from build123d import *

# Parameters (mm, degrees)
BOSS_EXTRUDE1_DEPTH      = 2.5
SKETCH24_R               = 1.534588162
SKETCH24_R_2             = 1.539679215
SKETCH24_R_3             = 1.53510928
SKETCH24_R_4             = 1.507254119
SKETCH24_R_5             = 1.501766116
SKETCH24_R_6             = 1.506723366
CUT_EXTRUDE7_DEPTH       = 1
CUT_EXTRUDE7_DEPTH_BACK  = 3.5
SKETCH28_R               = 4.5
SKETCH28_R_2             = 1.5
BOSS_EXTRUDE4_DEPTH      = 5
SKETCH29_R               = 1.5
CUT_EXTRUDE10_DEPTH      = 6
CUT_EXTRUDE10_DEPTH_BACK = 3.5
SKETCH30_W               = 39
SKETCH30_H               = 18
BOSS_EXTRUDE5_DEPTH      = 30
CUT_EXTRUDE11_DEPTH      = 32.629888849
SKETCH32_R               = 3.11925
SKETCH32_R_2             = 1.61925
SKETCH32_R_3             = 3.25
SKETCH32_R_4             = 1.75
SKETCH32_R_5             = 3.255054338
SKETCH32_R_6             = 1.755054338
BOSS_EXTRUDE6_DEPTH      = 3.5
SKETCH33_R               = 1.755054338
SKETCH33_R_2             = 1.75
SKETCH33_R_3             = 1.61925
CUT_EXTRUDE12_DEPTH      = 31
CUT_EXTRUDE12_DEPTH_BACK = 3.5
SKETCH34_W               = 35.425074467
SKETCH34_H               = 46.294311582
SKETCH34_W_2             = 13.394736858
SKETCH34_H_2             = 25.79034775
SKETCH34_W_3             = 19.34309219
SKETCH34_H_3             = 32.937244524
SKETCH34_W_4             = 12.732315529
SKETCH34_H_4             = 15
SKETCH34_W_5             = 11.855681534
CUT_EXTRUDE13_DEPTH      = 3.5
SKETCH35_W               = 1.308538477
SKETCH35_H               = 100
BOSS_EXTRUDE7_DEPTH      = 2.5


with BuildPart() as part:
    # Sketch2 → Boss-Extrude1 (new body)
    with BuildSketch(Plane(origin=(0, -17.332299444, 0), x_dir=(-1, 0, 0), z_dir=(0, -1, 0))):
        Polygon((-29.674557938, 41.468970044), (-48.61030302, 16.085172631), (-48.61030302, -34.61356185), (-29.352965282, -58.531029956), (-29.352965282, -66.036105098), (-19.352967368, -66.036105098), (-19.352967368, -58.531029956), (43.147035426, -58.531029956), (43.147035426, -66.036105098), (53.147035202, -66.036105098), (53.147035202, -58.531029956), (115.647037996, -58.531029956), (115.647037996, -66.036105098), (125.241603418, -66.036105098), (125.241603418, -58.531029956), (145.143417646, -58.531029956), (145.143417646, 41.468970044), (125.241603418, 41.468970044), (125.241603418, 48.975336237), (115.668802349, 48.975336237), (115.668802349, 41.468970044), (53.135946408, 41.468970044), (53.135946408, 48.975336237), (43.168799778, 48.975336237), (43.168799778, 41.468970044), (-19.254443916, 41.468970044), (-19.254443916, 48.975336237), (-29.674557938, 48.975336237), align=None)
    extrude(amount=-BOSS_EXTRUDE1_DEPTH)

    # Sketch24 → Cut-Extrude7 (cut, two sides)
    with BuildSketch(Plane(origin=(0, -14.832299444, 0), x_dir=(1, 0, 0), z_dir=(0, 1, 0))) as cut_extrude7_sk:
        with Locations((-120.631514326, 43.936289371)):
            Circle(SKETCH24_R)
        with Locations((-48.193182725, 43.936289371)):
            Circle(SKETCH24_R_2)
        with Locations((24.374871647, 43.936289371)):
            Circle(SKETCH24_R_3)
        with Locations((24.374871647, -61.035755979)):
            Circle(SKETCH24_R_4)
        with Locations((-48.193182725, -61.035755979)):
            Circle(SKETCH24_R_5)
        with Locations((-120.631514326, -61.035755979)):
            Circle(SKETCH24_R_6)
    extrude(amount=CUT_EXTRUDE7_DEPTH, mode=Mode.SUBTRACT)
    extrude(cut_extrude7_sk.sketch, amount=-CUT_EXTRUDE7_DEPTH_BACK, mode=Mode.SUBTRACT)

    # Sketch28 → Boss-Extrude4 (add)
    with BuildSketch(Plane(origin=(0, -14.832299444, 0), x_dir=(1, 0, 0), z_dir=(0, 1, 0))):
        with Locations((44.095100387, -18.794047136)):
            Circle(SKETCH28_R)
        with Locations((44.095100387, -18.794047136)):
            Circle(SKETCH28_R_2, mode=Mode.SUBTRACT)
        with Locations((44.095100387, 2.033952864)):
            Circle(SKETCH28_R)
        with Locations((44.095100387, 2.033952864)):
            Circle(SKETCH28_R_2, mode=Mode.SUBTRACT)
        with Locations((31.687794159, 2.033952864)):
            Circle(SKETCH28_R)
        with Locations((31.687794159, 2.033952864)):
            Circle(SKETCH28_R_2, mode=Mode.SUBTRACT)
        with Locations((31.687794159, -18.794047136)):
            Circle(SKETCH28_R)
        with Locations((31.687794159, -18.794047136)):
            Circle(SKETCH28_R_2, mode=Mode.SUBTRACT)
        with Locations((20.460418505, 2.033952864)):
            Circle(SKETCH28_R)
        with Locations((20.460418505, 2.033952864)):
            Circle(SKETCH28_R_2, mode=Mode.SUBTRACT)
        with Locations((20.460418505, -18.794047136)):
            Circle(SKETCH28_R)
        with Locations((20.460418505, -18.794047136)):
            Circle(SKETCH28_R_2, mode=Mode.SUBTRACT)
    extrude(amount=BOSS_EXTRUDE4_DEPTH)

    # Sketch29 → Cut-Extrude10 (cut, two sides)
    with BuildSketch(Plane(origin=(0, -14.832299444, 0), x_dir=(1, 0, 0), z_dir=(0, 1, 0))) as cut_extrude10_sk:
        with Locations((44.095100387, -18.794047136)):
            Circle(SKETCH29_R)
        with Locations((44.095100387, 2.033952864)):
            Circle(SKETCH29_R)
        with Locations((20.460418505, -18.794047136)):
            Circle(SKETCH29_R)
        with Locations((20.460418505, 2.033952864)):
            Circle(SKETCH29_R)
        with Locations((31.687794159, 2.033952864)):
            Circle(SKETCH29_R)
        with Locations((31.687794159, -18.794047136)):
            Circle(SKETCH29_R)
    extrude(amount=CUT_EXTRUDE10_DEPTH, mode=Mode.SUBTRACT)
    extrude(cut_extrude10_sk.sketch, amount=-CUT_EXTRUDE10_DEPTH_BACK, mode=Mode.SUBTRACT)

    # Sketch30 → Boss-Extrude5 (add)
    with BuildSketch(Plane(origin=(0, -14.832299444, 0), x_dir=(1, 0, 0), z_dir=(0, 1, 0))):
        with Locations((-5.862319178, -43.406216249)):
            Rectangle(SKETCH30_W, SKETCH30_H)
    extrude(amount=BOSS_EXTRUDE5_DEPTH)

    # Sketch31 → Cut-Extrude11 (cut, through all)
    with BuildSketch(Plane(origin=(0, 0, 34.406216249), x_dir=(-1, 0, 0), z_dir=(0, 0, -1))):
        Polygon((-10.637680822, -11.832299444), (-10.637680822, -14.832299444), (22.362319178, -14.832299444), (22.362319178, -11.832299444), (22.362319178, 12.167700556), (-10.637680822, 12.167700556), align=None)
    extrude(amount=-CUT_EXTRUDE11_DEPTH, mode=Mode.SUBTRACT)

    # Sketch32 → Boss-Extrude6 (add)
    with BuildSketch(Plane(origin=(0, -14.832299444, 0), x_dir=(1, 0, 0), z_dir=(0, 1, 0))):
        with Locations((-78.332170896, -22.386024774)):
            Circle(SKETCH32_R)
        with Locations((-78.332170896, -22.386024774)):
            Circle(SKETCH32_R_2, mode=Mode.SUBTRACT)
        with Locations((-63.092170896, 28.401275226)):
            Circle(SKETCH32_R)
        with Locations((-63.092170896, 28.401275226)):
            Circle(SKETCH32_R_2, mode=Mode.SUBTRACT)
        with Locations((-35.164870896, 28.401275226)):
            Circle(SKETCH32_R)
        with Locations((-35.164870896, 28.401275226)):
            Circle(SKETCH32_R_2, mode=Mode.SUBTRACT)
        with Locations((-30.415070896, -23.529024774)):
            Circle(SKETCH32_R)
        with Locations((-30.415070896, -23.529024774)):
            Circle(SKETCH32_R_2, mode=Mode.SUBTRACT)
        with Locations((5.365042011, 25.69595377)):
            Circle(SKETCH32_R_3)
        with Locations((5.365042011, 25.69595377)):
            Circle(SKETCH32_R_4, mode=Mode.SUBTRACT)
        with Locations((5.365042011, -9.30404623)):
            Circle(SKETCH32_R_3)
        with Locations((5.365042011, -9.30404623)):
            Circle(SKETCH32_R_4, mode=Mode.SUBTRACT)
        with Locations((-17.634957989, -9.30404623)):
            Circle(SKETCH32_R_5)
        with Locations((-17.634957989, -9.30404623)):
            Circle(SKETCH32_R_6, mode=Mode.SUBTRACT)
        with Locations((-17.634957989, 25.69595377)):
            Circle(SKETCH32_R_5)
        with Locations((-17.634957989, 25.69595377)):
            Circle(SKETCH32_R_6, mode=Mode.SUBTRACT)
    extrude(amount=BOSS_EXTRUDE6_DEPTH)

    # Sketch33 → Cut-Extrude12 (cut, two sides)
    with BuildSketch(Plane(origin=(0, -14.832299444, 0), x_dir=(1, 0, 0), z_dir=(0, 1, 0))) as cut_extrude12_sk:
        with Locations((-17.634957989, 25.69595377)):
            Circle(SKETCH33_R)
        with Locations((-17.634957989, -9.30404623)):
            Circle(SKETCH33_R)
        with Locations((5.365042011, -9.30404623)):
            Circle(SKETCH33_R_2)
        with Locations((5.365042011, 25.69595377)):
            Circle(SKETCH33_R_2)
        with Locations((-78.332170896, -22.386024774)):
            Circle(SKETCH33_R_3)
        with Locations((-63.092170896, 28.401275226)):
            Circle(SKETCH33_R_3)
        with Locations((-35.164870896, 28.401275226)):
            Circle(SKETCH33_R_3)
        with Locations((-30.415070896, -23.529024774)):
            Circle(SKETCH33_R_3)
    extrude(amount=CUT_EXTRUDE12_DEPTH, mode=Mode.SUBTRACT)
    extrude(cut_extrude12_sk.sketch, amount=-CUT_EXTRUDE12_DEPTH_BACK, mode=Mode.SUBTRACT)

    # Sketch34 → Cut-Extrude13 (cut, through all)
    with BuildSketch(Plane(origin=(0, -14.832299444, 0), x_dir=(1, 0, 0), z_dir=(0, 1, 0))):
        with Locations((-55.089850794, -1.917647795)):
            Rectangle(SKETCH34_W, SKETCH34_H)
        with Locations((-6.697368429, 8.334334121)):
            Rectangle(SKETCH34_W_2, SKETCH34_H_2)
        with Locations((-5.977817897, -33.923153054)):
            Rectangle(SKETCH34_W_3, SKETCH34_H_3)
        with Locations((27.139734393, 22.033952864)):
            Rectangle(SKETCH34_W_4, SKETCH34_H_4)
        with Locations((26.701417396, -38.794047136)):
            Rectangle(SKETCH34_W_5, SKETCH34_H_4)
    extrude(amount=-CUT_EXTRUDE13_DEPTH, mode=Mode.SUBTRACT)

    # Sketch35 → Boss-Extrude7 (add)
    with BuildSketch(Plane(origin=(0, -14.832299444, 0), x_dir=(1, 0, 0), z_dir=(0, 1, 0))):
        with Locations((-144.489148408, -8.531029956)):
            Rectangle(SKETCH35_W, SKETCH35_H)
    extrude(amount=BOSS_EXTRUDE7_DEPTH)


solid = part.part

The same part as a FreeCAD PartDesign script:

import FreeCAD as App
import Part
import Sketcher


def add_polygon(sketch, points):
    """Adds a closed chain of lines whose ends are joined by coincident constraints."""
    first, n = sketch.GeometryCount, len(points)
    for a, b in zip(points, points[1:] + points[:1]):
        sketch.addGeometry(Part.LineSegment(App.Vector(*a, 0), App.Vector(*b, 0)), False)
    for i in range(n):
        sketch.addConstraint(Sketcher.Constraint("Coincident", first + i, 2, first + (i + 1) % n, 1))

doc = App.newDocument("Part")
body = doc.addObject("PartDesign::Body", "Body")

# Sketch on XZ plane
sketch1 = body.newObject("Sketcher::SketchObject", "Sketch")
sketch1.AttachmentSupport = (doc.getObject("XZ_Plane"), [""])
sketch1.MapMode = "FlatFace"
sketch1.AttachmentOffset = App.Placement(App.Vector(0, 0, 17.332299), App.Rotation())
add_polygon(sketch1, [(29.674558, -41.46897), (48.610303, -16.085173), (48.610303, 34.613562), (29.352965, 58.53103), (29.352965, 66.036105), (19.352967, 66.036105), (19.352967, 58.53103), (-43.147035, 58.53103), (-43.147035, 66.036105), (-53.147035, 66.036105), (-53.147035, 58.53103), (-115.647038, 58.53103), (-115.647038, 66.036105), (-125.241603, 66.036105), (-125.241603, 58.53103), (-145.143418, 58.53103), (-145.143418, -41.46897), (-125.241603, -41.46897), (-125.241603, -48.975336), (-115.668802, -48.975336), (-115.668802, -41.46897), (-53.135946, -41.46897), (-53.135946, -48.975336), (-43.1688, -48.975336), (-43.1688, -41.46897), (19.254444, -41.46897), (19.254444, -48.975336), (29.674558, -48.975336)])  # lines 0-27
sketch1.addConstraint(Sketcher.Constraint("Vertical", 1))
sketch1.addConstraint(Sketcher.Constraint("Vertical", 3))
sketch1.addConstraint(Sketcher.Constraint("Horizontal", 4))
sketch1.addConstraint(Sketcher.Constraint("Vertical", 5))
sketch1.addConstraint(Sketcher.Constraint("Horizontal", 6))
sketch1.addConstraint(Sketcher.Constraint("Vertical", 7))
sketch1.addConstraint(Sketcher.Constraint("Horizontal", 8))
sketch1.addConstraint(Sketcher.Constraint("Vertical", 9))
sketch1.addConstraint(Sketcher.Constraint("Horizontal", 10))
sketch1.addConstraint(Sketcher.Constraint("Vertical", 11))
sketch1.addConstraint(Sketcher.Constraint("Horizontal", 12))
sketch1.addConstraint(Sketcher.Constraint("Vertical", 13))
sketch1.addConstraint(Sketcher.Constraint("Horizontal", 14))
sketch1.addConstraint(Sketcher.Constraint("Vertical", 15))
sketch1.addConstraint(Sketcher.Constraint("Horizontal", 16))
sketch1.addConstraint(Sketcher.Constraint("Vertical", 17))
sketch1.addConstraint(Sketcher.Constraint("Horizontal", 18))
sketch1.addConstraint(Sketcher.Constraint("Vertical", 19))
sketch1.addConstraint(Sketcher.Constraint("Horizontal", 20))
sketch1.addConstraint(Sketcher.Constraint("Vertical", 21))
sketch1.addConstraint(Sketcher.Constraint("Horizontal", 22))
sketch1.addConstraint(Sketcher.Constraint("Vertical", 23))
sketch1.addConstraint(Sketcher.Constraint("Horizontal", 24))
sketch1.addConstraint(Sketcher.Constraint("Vertical", 25))
sketch1.addConstraint(Sketcher.Constraint("Horizontal", 26))
sketch1.addConstraint(Sketcher.Constraint("Vertical", 27))
sketch1.addConstraint(Sketcher.Constraint("Horizontal", 2, 2, 5, 2))
sketch1.addConstraint(Sketcher.Constraint("Horizontal", 4, 2, 7, 2))
sketch1.addConstraint(Sketcher.Constraint("Horizontal", 6, 2, 9, 2))
sketch1.addConstraint(Sketcher.Constraint("Horizontal", 8, 2, 11, 2))
sketch1.addConstraint(Sketcher.Constraint("Horizontal", 10, 2, 13, 2))
sketch1.addConstraint(Sketcher.Constraint("Horizontal", 16, 2, 19, 2))
sketch1.addConstraint(Sketcher.Constraint("Horizontal", 18, 2, 21, 2))
sketch1.addConstraint(Sketcher.Constraint("Horizontal", 20, 2, 23, 2))
sketch1.addConstraint(Sketcher.Constraint("Horizontal", 22, 2, 25, 2))
sketch1.addConstraint(Sketcher.Constraint("Horizontal", 24, 2, 27, 2))
sketch1.addConstraint(Sketcher.Constraint("Vertical", 13, 2, 16, 2))
sketch1.addConstraint(Sketcher.Constraint("Equal", 4, 8))
sketch1.addConstraint(Sketcher.Constraint("Equal", 6, 10))
sketch1.addConstraint(Sketcher.Constraint("DistanceX", 8, 2, 8, 1, 10.0))
sketch1.addConstraint(Sketcher.Constraint("DistanceY", 15, 2, 15, 1, 100.0))
sketch1.addConstraint(Sketcher.Constraint("DistanceX", 6, 2, 2, 2, 72.500001))
sketch1.addConstraint(Sketcher.Constraint("DistanceX", 18, 1, 18, 2, 9.572801))
sketch1.addConstraint(Sketcher.Constraint("DistanceX", 22, 2, -1, 1, 43.1688))
sketch1.addConstraint(Sketcher.Constraint("Distance", 0, 31.66859))
sketch1.addConstraint(Sketcher.Constraint("Distance", 2, 30.706519))
sketch1.addConstraint(Sketcher.Constraint("DistanceX", 12, 2, 12, 1, 9.594565))
sketch1.addConstraint(Sketcher.Constraint("DistanceX", 14, 2, 14, 1, 19.901814))
sketch1.addConstraint(Sketcher.Constraint("DistanceX", 20, 1, 20, 2, 62.532856))
sketch1.addConstraint(Sketcher.Constraint("DistanceX", 22, 1, 22, 2, 9.967147))
sketch1.addConstraint(Sketcher.Constraint("DistanceX", 24, 1, 24, 2, 62.423244))
sketch1.addConstraint(Sketcher.Constraint("DistanceX", 26, 1, 26, 2, 10.420114))
sketch1.addConstraint(Sketcher.Constraint("DistanceY", 1, 1, 1, 2, 50.698734))
sketch1.addConstraint(Sketcher.Constraint("DistanceY", 3, 1, 3, 2, 7.505075))
sketch1.addConstraint(Sketcher.Constraint("DistanceY", 17, 2, 17, 1, 7.506366))
sketch1.addConstraint(Sketcher.Constraint("DistanceY", -1, 1, 1, 2, 34.613562))
pad1 = body.newObject("PartDesign::Pad", "Pad")
pad1.Profile = sketch1
pad1.Length = 2.5
pad1.Reversed = True

# Sketch on XZ plane
sketch2 = body.newObject("Sketcher::SketchObject", "Sketch001")
sketch2.AttachmentSupport = (doc.getObject("XZ_Plane"), [""])
sketch2.MapMode = "FlatFace"
sketch2.AttachmentOffset = App.Placement(App.Vector(0, 0, 14.832299), App.Rotation())
sketch2.addGeometry(Part.Circle(App.Vector(-120.631514, -43.936289, 0), App.Vector(0, 0, 1), 1.534588), False)
sketch2.addGeometry(Part.Circle(App.Vector(-48.193183, -43.936289, 0), App.Vector(0, 0, 1), 1.539679), False)
sketch2.addGeometry(Part.Circle(App.Vector(24.374872, -43.936289, 0), App.Vector(0, 0, 1), 1.535109), False)
sketch2.addGeometry(Part.Circle(App.Vector(24.374872, 61.035756, 0), App.Vector(0, 0, 1), 1.507254), False)
sketch2.addGeometry(Part.Circle(App.Vector(-48.193183, 61.035756, 0), App.Vector(0, 0, 1), 1.501766), False)
sketch2.addGeometry(Part.Circle(App.Vector(-120.631514, 61.035756, 0), App.Vector(0, 0, 1), 1.506723), False)
sketch2.addConstraint(Sketcher.Constraint("Horizontal", 0, 3, 1, 3))
sketch2.addConstraint(Sketcher.Constraint("Horizontal", 1, 3, 2, 3))
sketch2.addConstraint(Sketcher.Constraint("Horizontal", 3, 3, 4, 3))
sketch2.addConstraint(Sketcher.Constraint("Horizontal", 4, 3, 5, 3))
sketch2.addConstraint(Sketcher.Constraint("Vertical", 2, 3, 3, 3))
sketch2.addConstraint(Sketcher.Constraint("Vertical", 1, 3, 4, 3))
sketch2.addConstraint(Sketcher.Constraint("Vertical", 0, 3, 5, 3))
sketch2.addConstraint(Sketcher.Constraint("Diameter", 1, 3.079358))
sketch2.addConstraint(Sketcher.Constraint("Diameter", 2, 3.070219))
sketch2.addConstraint(Sketcher.Constraint("Diameter", 3, 3.014508))
sketch2.addConstraint(Sketcher.Constraint("Diameter", 0, 3.069176))
sketch2.addConstraint(Sketcher.Constraint("Diameter", 4, 3.003532))
sketch2.addConstraint(Sketcher.Constraint("Diameter", 5, 3.013447))
sketch2.addConstraint(Sketcher.Constraint("DistanceY", 0, 3, -1, 1, 43.936289))
sketch2.addConstraint(Sketcher.Constraint("DistanceX", -1, 1, 2, 3, 24.374872))
sketch2.addConstraint(Sketcher.Constraint("DistanceX", 0, 3, 1, 3, 72.438332))
sketch2.addConstraint(Sketcher.Constraint("DistanceX", 0, 3, -1, 1, 120.631514))
sketch2.addConstraint(Sketcher.Constraint("DistanceY", -1, 1, 3, 3, 61.035756))
pocket1 = body.newObject("PartDesign::Pocket", "Pocket")
pocket1.Profile = sketch2
pocket1.Type = "ThroughAll"
pocket1.Midplane = True

# Sketch on XZ plane
sketch3 = body.newObject("Sketcher::SketchObject", "Sketch002")
sketch3.AttachmentSupport = (doc.getObject("XZ_Plane"), [""])
sketch3.MapMode = "FlatFace"
sketch3.AttachmentOffset = App.Placement(App.Vector(0, 0, 14.832299), App.Rotation())
sketch3.addGeometry(Part.Circle(App.Vector(44.0951, 18.794047, 0), App.Vector(0, 0, 1), 4.5), False)
sketch3.addGeometry(Part.Circle(App.Vector(44.0951, 18.794047, 0), App.Vector(0, 0, 1), 1.5), False)
sketch3.addGeometry(Part.Circle(App.Vector(44.0951, -2.033953, 0), App.Vector(0, 0, 1), 4.5), False)
sketch3.addGeometry(Part.Circle(App.Vector(44.0951, -2.033953, 0), App.Vector(0, 0, 1), 1.5), False)
sketch3.addGeometry(Part.Circle(App.Vector(31.687794, -2.033953, 0), App.Vector(0, 0, 1), 4.5), False)
sketch3.addGeometry(Part.Circle(App.Vector(31.687794, -2.033953, 0), App.Vector(0, 0, 1), 1.5), False)
sketch3.addGeometry(Part.Circle(App.Vector(31.687794, 18.794047, 0), App.Vector(0, 0, 1), 4.5), False)
sketch3.addGeometry(Part.Circle(App.Vector(31.687794, 18.794047, 0), App.Vector(0, 0, 1), 1.5), False)
sketch3.addGeometry(Part.Circle(App.Vector(20.460419, -2.033953, 0), App.Vector(0, 0, 1), 4.5), False)
sketch3.addGeometry(Part.Circle(App.Vector(20.460419, -2.033953, 0), App.Vector(0, 0, 1), 1.5), False)
sketch3.addGeometry(Part.Circle(App.Vector(20.460419, 18.794047, 0), App.Vector(0, 0, 1), 4.5), False)
sketch3.addGeometry(Part.Circle(App.Vector(20.460419, 18.794047, 0), App.Vector(0, 0, 1), 1.5), False)
sketch3.addConstraint(Sketcher.Constraint("Coincident", 1, 3, 0, 3))
sketch3.addConstraint(Sketcher.Constraint("Coincident", 3, 3, 2, 3))
sketch3.addConstraint(Sketcher.Constraint("Coincident", 5, 3, 4, 3))
sketch3.addConstraint(Sketcher.Constraint("Coincident", 7, 3, 6, 3))
sketch3.addConstraint(Sketcher.Constraint("Coincident", 9, 3, 8, 3))
sketch3.addConstraint(Sketcher.Constraint("Coincident", 11, 3, 10, 3))
sketch3.addConstraint(Sketcher.Constraint("Equal", 0, 2))
sketch3.addConstraint(Sketcher.Constraint("Equal", 1, 3))
sketch3.addConstraint(Sketcher.Constraint("Equal", 2, 4))
sketch3.addConstraint(Sketcher.Constraint("Equal", 3, 5))
sketch3.addConstraint(Sketcher.Constraint("Equal", 4, 6))
sketch3.addConstraint(Sketcher.Constraint("Equal", 5, 7))
sketch3.addConstraint(Sketcher.Constraint("Equal", 6, 8))
sketch3.addConstraint(Sketcher.Constraint("Equal", 7, 9))
sketch3.addConstraint(Sketcher.Constraint("Equal", 8, 10))
sketch3.addConstraint(Sketcher.Constraint("Equal", 9, 11))
sketch3.addConstraint(Sketcher.Constraint("Horizontal", 3, 3, 4, 3))
sketch3.addConstraint(Sketcher.Constraint("Horizontal", 1, 3, 6, 3))
sketch3.addConstraint(Sketcher.Constraint("Horizontal", 5, 3, 8, 3))
sketch3.addConstraint(Sketcher.Constraint("Horizontal", 7, 3, 10, 3))
sketch3.addConstraint(Sketcher.Constraint("Vertical", 1, 3, 2, 3))
sketch3.addConstraint(Sketcher.Constraint("Vertical", 5, 3, 6, 3))
sketch3.addConstraint(Sketcher.Constraint("Vertical", 9, 3, 10, 3))
sketch3.addConstraint(Sketcher.Constraint("Diameter", 0, 9.0))
sketch3.addConstraint(Sketcher.Constraint("Diameter", 1, 3.0))
sketch3.addConstraint(Sketcher.Constraint("DistanceY", 2, 3, 0, 3, 20.828))
sketch3.addConstraint(Sketcher.Constraint("DistanceX", -1, 1, 0, 3, 44.0951))
sketch3.addConstraint(Sketcher.Constraint("DistanceX", -1, 1, 8, 3, 20.460419))
sketch3.addConstraint(Sketcher.Constraint("DistanceY", -1, 1, 0, 3, 18.794047))
sketch3.addConstraint(Sketcher.Constraint("DistanceX", -1, 1, 4, 3, 31.687794))
pad2 = body.newObject("PartDesign::Pad", "Pad001")
pad2.Profile = sketch3
pad2.Length = 5
pad2.Reversed = True

# Sketch on XZ plane
sketch4 = body.newObject("Sketcher::SketchObject", "Sketch003")
sketch4.AttachmentSupport = (doc.getObject("XZ_Plane"), [""])
sketch4.MapMode = "FlatFace"
sketch4.AttachmentOffset = App.Placement(App.Vector(0, 0, 14.832299), App.Rotation())
sketch4.addGeometry(Part.Circle(App.Vector(44.0951, 18.794047, 0), App.Vector(0, 0, 1), 1.5), False)
sketch4.addGeometry(Part.Circle(App.Vector(44.0951, -2.033953, 0), App.Vector(0, 0, 1), 1.5), False)
sketch4.addGeometry(Part.Circle(App.Vector(20.460419, 18.794047, 0), App.Vector(0, 0, 1), 1.5), False)
sketch4.addGeometry(Part.Circle(App.Vector(20.460419, -2.033953, 0), App.Vector(0, 0, 1), 1.5), False)
sketch4.addGeometry(Part.Circle(App.Vector(31.687794, -2.033953, 0), App.Vector(0, 0, 1), 1.5), False)
sketch4.addGeometry(Part.Circle(App.Vector(31.687794, 18.794047, 0), App.Vector(0, 0, 1), 1.5), False)
sketch4.addConstraint(Sketcher.Constraint("Equal", 0, 1))
sketch4.addConstraint(Sketcher.Constraint("Equal", 1, 2))
sketch4.addConstraint(Sketcher.Constraint("Equal", 2, 3))
sketch4.addConstraint(Sketcher.Constraint("Equal", 3, 4))
sketch4.addConstraint(Sketcher.Constraint("Equal", 4, 5))
sketch4.addConstraint(Sketcher.Constraint("Horizontal", 0, 3, 2, 3))
sketch4.addConstraint(Sketcher.Constraint("Horizontal", 1, 3, 3, 3))
sketch4.addConstraint(Sketcher.Constraint("Horizontal", 3, 3, 4, 3))
sketch4.addConstraint(Sketcher.Constraint("Horizontal", 2, 3, 5, 3))
sketch4.addConstraint(Sketcher.Constraint("Vertical", 0, 3, 1, 3))
sketch4.addConstraint(Sketcher.Constraint("Vertical", 2, 3, 3, 3))
sketch4.addConstraint(Sketcher.Constraint("Vertical", 4, 3, 5, 3))
sketch4.addConstraint(Sketcher.Constraint("Diameter", 0, 3.0))
sketch4.addConstraint(Sketcher.Constraint("DistanceY", 1, 3, 0, 3, 20.828))
sketch4.addConstraint(Sketcher.Constraint("DistanceX", -1, 1, 0, 3, 44.0951))
sketch4.addConstraint(Sketcher.Constraint("DistanceX", -1, 1, 2, 3, 20.460419))
sketch4.addConstraint(Sketcher.Constraint("DistanceY", -1, 1, 0, 3, 18.794047))
sketch4.addConstraint(Sketcher.Constraint("DistanceX", -1, 1, 4, 3, 31.687794))
pocket2 = body.newObject("PartDesign::Pocket", "Pocket001")
pocket2.Profile = sketch4
pocket2.Type = "ThroughAll"
pocket2.Midplane = True

# Sketch on XZ plane
sketch5 = body.newObject("Sketcher::SketchObject", "Sketch004")
sketch5.AttachmentSupport = (doc.getObject("XZ_Plane"), [""])
sketch5.MapMode = "FlatFace"
sketch5.AttachmentOffset = App.Placement(App.Vector(0, 0, 14.832299), App.Rotation())
add_polygon(sketch5, [(-25.362319, 34.406216), (-25.362319, 52.406216), (13.637681, 52.406216), (13.637681, 34.406216)])  # lines 0-3
sketch5.addConstraint(Sketcher.Constraint("Vertical", 0))
sketch5.addConstraint(Sketcher.Constraint("Horizontal", 1))
sketch5.addConstraint(Sketcher.Constraint("Vertical", 2))
sketch5.addConstraint(Sketcher.Constraint("Horizontal", 3))
sketch5.addConstraint(Sketcher.Constraint("DistanceX", 1, 1, 1, 2, 39.0))
sketch5.addConstraint(Sketcher.Constraint("DistanceY", 0, 1, 0, 2, 18.0))
sketch5.addConstraint(Sketcher.Constraint("DistanceX", 0, 2, -1, 1, 25.362319))
sketch5.addConstraint(Sketcher.Constraint("DistanceY", -1, 1, 0, 2, 52.406216))
pad3 = body.newObject("PartDesign::Pad", "Pad002")
pad3.Profile = sketch5
pad3.Length = 30
pad3.Reversed = True

# Sketch on XY plane
sketch6 = body.newObject("Sketcher::SketchObject", "Sketch005")
sketch6.AttachmentSupport = (doc.getObject("XY_Plane"), [""])
sketch6.MapMode = "FlatFace"
sketch6.AttachmentOffset = App.Placement(App.Vector(0, 0, 34.406216), App.Rotation())
add_polygon(sketch6, [(10.637681, -14.832299), (-22.362319, -14.832299), (-22.362319, 12.167701), (10.637681, 12.167701)])  # lines 0-3
sketch6.addConstraint(Sketcher.Constraint("Horizontal", 0))
sketch6.addConstraint(Sketcher.Constraint("Vertical", 1))
sketch6.addConstraint(Sketcher.Constraint("Horizontal", 2))
sketch6.addConstraint(Sketcher.Constraint("Vertical", 3))
sketch6.addConstraint(Sketcher.Constraint("DistanceX", 0, 2, 0, 1, 33.0))
sketch6.addConstraint(Sketcher.Constraint("DistanceY", 1, 1, 1, 2, 27.0))
sketch6.addConstraint(Sketcher.Constraint("DistanceY", 0, 2, -1, 1, 14.832299))
sketch6.addConstraint(Sketcher.Constraint("DistanceX", 0, 2, -1, 1, 22.362319))
pocket3 = body.newObject("PartDesign::Pocket", "Pocket002")
pocket3.Profile = sketch6
pocket3.Type = "ThroughAll"
pocket3.Reversed = True

# Sketch on XZ plane
sketch7 = body.newObject("Sketcher::SketchObject", "Sketch006")
sketch7.AttachmentSupport = (doc.getObject("XZ_Plane"), [""])
sketch7.MapMode = "FlatFace"
sketch7.AttachmentOffset = App.Placement(App.Vector(0, 0, 14.832299), App.Rotation())
sketch7.addGeometry(Part.Circle(App.Vector(-78.332171, 22.386025, 0), App.Vector(0, 0, 1), 3.11925), False)
sketch7.addGeometry(Part.Circle(App.Vector(-78.332171, 22.386025, 0), App.Vector(0, 0, 1), 1.61925), False)
sketch7.addGeometry(Part.Circle(App.Vector(-63.092171, -28.401275, 0), App.Vector(0, 0, 1), 3.11925), False)
sketch7.addGeometry(Part.Circle(App.Vector(-63.092171, -28.401275, 0), App.Vector(0, 0, 1), 1.61925), False)
sketch7.addGeometry(Part.Circle(App.Vector(-35.164871, -28.401275, 0), App.Vector(0, 0, 1), 3.11925), False)
sketch7.addGeometry(Part.Circle(App.Vector(-35.164871, -28.401275, 0), App.Vector(0, 0, 1), 1.61925), False)
sketch7.addGeometry(Part.Circle(App.Vector(-30.415071, 23.529025, 0), App.Vector(0, 0, 1), 3.11925), False)
sketch7.addGeometry(Part.Circle(App.Vector(-30.415071, 23.529025, 0), App.Vector(0, 0, 1), 1.61925), False)
sketch7.addGeometry(Part.Circle(App.Vector(5.365042, -25.695954, 0), App.Vector(0, 0, 1), 3.25), False)
sketch7.addGeometry(Part.Circle(App.Vector(5.365042, -25.695954, 0), App.Vector(0, 0, 1), 1.75), False)
sketch7.addGeometry(Part.Circle(App.Vector(5.365042, 9.304046, 0), App.Vector(0, 0, 1), 3.25), False)
sketch7.addGeometry(Part.Circle(App.Vector(5.365042, 9.304046, 0), App.Vector(0, 0, 1), 1.75), False)
sketch7.addGeometry(Part.Circle(App.Vector(-17.634958, 9.304046, 0), App.Vector(0, 0, 1), 3.255054), False)
sketch7.addGeometry(Part.Circle(App.Vector(-17.634958, 9.304046, 0), App.Vector(0, 0, 1), 1.755054), False)
sketch7.addGeometry(Part.Circle(App.Vector(-17.634958, -25.695954, 0), App.Vector(0, 0, 1), 3.255054), False)
sketch7.addGeometry(Part.Circle(App.Vector(-17.634958, -25.695954, 0), App.Vector(0, 0, 1), 1.755054), False)
sketch7.addConstraint(Sketcher.Constraint("Coincident", 1, 3, 0, 3))
sketch7.addConstraint(Sketcher.Constraint("Coincident", 3, 3, 2, 3))
sketch7.addConstraint(Sketcher.Constraint("Coincident", 5, 3, 4, 3))
sketch7.addConstraint(Sketcher.Constraint("Coincident", 7, 3, 6, 3))
sketch7.addConstraint(Sketcher.Constraint("Coincident", 9, 3, 8, 3))
sketch7.addConstraint(Sketcher.Constraint("Coincident", 11, 3, 10, 3))
sketch7.addConstraint(Sketcher.Constraint("Coincident", 13, 3, 12, 3))
sketch7.addConstraint(Sketcher.Constraint("Coincident", 15, 3, 14, 3))
sketch7.addConstraint(Sketcher.Constraint("Equal", 0, 2))
sketch7.addConstraint(Sketcher.Constraint("Equal", 1, 3))
sketch7.addConstraint(Sketcher.Constraint("Equal", 2, 4))
sketch7.addConstraint(Sketcher.Constraint("Equal", 3, 5))
sketch7.addConstraint(Sketcher.Constraint("Equal", 4, 6))
sketch7.addConstraint(Sketcher.Constraint("Equal", 5, 7))
sketch7.addConstraint(Sketcher.Constraint("Equal", 8, 10))
sketch7.addConstraint(Sketcher.Constraint("Equal", 9, 11))
sketch7.addConstraint(Sketcher.Constraint("Equal", 12, 14))
sketch7.addConstraint(Sketcher.Constraint("Equal", 13, 15))
sketch7.addConstraint(Sketcher.Constraint("Horizontal", 3, 3, 4, 3))
sketch7.addConstraint(Sketcher.Constraint("Horizontal", 11, 3, 12, 3))
sketch7.addConstraint(Sketcher.Constraint("Horizontal", 9, 3, 14, 3))
sketch7.addConstraint(Sketcher.Constraint("Vertical", 9, 3, 10, 3))
sketch7.addConstraint(Sketcher.Constraint("Vertical", 13, 3, 14, 3))
sketch7.addConstraint(Sketcher.Constraint("Diameter", 8, 6.5))
sketch7.addConstraint(Sketcher.Constraint("Diameter", 9, 3.5))
sketch7.addConstraint(Sketcher.Constraint("DistanceY", 8, 3, 10, 3, 35.0))
sketch7.addConstraint(Sketcher.Constraint("DistanceX", 12, 3, 10, 3, 23.0))
sketch7.addConstraint(Sketcher.Constraint("Diameter", 0, 6.2385))
sketch7.addConstraint(Sketcher.Constraint("Diameter", 1, 3.2385))
sketch7.addConstraint(Sketcher.Constraint("Diameter", 12, 6.510109))
sketch7.addConstraint(Sketcher.Constraint("Diameter", 13, 3.510109))
sketch7.addConstraint(Sketcher.Constraint("DistanceX", 0, 3, 2, 3, 15.24))
sketch7.addConstraint(Sketcher.Constraint("DistanceY", 0, 3, 6, 3, 1.143))
sketch7.addConstraint(Sketcher.Constraint("DistanceY", 2, 3, 0, 3, 50.7873))
sketch7.addConstraint(Sketcher.Constraint("DistanceX", 2, 3, 4, 3, 27.9273))
sketch7.addConstraint(Sketcher.Constraint("DistanceX", 0, 3, 6, 3, 47.9171))
sketch7.addConstraint(Sketcher.Constraint("DistanceX", 0, 3, -1, 1, 78.332171))
sketch7.addConstraint(Sketcher.Constraint("DistanceY", 4, 3, 8, 3, 2.705321))
sketch7.addConstraint(Sketcher.Constraint("DistanceY", -1, 1, 0, 3, 22.386025))
sketch7.addConstraint(Sketcher.Constraint("DistanceX", -1, 1, 8, 3, 5.365042))
pad4 = body.newObject("PartDesign::Pad", "Pad003")
pad4.Profile = sketch7
pad4.Length = 3.5
pad4.Reversed = True

# Sketch on XZ plane
sketch8 = body.newObject("Sketcher::SketchObject", "Sketch007")
sketch8.AttachmentSupport = (doc.getObject("XZ_Plane"), [""])
sketch8.MapMode = "FlatFace"
sketch8.AttachmentOffset = App.Placement(App.Vector(0, 0, 14.832299), App.Rotation())
sketch8.addGeometry(Part.Circle(App.Vector(-17.634958, -25.695954, 0), App.Vector(0, 0, 1), 1.755054), False)
sketch8.addGeometry(Part.Circle(App.Vector(-17.634958, 9.304046, 0), App.Vector(0, 0, 1), 1.755054), False)
sketch8.addGeometry(Part.Circle(App.Vector(5.365042, 9.304046, 0), App.Vector(0, 0, 1), 1.75), False)
sketch8.addGeometry(Part.Circle(App.Vector(5.365042, -25.695954, 0), App.Vector(0, 0, 1), 1.75), False)
sketch8.addGeometry(Part.Circle(App.Vector(-78.332171, 22.386025, 0), App.Vector(0, 0, 1), 1.61925), False)
sketch8.addGeometry(Part.Circle(App.Vector(-63.092171, -28.401275, 0), App.Vector(0, 0, 1), 1.61925), False)
sketch8.addGeometry(Part.Circle(App.Vector(-35.164871, -28.401275, 0), App.Vector(0, 0, 1), 1.61925), False)
sketch8.addGeometry(Part.Circle(App.Vector(-30.415071, 23.529025, 0), App.Vector(0, 0, 1), 1.61925), False)
sketch8.addConstraint(Sketcher.Constraint("Equal", 0, 1))
sketch8.addConstraint(Sketcher.Constraint("Equal", 2, 3))
sketch8.addConstraint(Sketcher.Constraint("Equal", 4, 5))
sketch8.addConstraint(Sketcher.Constraint("Equal", 5, 6))
sketch8.addConstraint(Sketcher.Constraint("Equal", 6, 7))
sketch8.addConstraint(Sketcher.Constraint("Horizontal", 1, 3, 2, 3))
sketch8.addConstraint(Sketcher.Constraint("Horizontal", 0, 3, 3, 3))
sketch8.addConstraint(Sketcher.Constraint("Horizontal", 5, 3, 6, 3))
sketch8.addConstraint(Sketcher.Constraint("Vertical", 0, 3, 1, 3))
sketch8.addConstraint(Sketcher.Constraint("Vertical", 2, 3, 3, 3))
sketch8.addConstraint(Sketcher.Constraint("Diameter", 2, 3.5))
sketch8.addConstraint(Sketcher.Constraint("DistanceY", 0, 3, 1, 3, 35.0))
sketch8.addConstraint(Sketcher.Constraint("DistanceX", 1, 3, 2, 3, 23.0))
sketch8.addConstraint(Sketcher.Constraint("Diameter", 4, 3.2385))
sketch8.addConstraint(Sketcher.Constraint("Diameter", 0, 3.510109))
sketch8.addConstraint(Sketcher.Constraint("DistanceX", 4, 3, 5, 3, 15.24))
sketch8.addConstraint(Sketcher.Constraint("DistanceY", 4, 3, 7, 3, 1.143))
sketch8.addConstraint(Sketcher.Constraint("DistanceY", 5, 3, 4, 3, 50.7873))
sketch8.addConstraint(Sketcher.Constraint("DistanceX", 5, 3, 6, 3, 27.9273))
sketch8.addConstraint(Sketcher.Constraint("DistanceX", 4, 3, 7, 3, 47.9171))
sketch8.addConstraint(Sketcher.Constraint("DistanceX", 4, 3, -1, 1, 78.332171))
sketch8.addConstraint(Sketcher.Constraint("DistanceY", 1, 3, 4, 3, 13.081979))
sketch8.addConstraint(Sketcher.Constraint("DistanceX", 0, 3, -1, 1, 17.634958))
sketch8.addConstraint(Sketcher.Constraint("DistanceY", 0, 3, -1, 1, 25.695954))
pocket4 = body.newObject("PartDesign::Pocket", "Pocket003")
pocket4.Profile = sketch8
pocket4.Type = "ThroughAll"
pocket4.Midplane = True

# Sketch on XZ plane
sketch9 = body.newObject("Sketcher::SketchObject", "Sketch008")
sketch9.AttachmentSupport = (doc.getObject("XZ_Plane"), [""])
sketch9.MapMode = "FlatFace"
sketch9.AttachmentOffset = App.Placement(App.Vector(0, 0, 14.832299), App.Rotation())
add_polygon(sketch9, [(-72.802388, -21.229508), (-72.802388, 25.064804), (-37.377314, 25.064804), (-37.377314, -21.229508)])  # lines 0-3
add_polygon(sketch9, [(-13.394737, -21.229508), (-13.394737, 4.56084), (0, 4.56084), (0, -21.229508)])  # lines 4-7
add_polygon(sketch9, [(-15.649364, 17.454531), (-15.649364, 50.391775), (3.693728, 50.391775), (3.693728, 17.454531)])  # lines 8-11
add_polygon(sketch9, [(20.773577, -29.533953), (20.773577, -14.533953), (33.505892, -14.533953), (33.505892, -29.533953)])  # lines 12-15
add_polygon(sketch9, [(20.773577, 31.294047), (20.773577, 46.294047), (32.629258, 46.294047), (32.629258, 31.294047)])  # lines 16-19
sketch9.addConstraint(Sketcher.Constraint("Vertical", 0))
sketch9.addConstraint(Sketcher.Constraint("Horizontal", 1))
sketch9.addConstraint(Sketcher.Constraint("Vertical", 2))
sketch9.addConstraint(Sketcher.Constraint("Horizontal", 3))
sketch9.addConstraint(Sketcher.Constraint("Vertical", 4))
sketch9.addConstraint(Sketcher.Constraint("Horizontal", 5))
sketch9.addConstraint(Sketcher.Constraint("Vertical", 6))
sketch9.addConstraint(Sketcher.Constraint("Horizontal", 7))
sketch9.addConstraint(Sketcher.Constraint("Vertical", 8))
sketch9.addConstraint(Sketcher.Constraint("Horizontal", 9))
sketch9.addConstraint(Sketcher.Constraint("Vertical", 10))
sketch9.addConstraint(Sketcher.Constraint("Horizontal", 11))
sketch9.addConstraint(Sketcher.Constraint("Vertical", 12))
sketch9.addConstraint(Sketcher.Constraint("Horizontal", 13))
sketch9.addConstraint(Sketcher.Constraint("Vertical", 14))
sketch9.addConstraint(Sketcher.Constraint("Horizontal", 15))
sketch9.addConstraint(Sketcher.Constraint("Vertical", 16))
sketch9.addConstraint(Sketcher.Constraint("Horizontal", 17))
sketch9.addConstraint(Sketcher.Constraint("Vertical", 18))
sketch9.addConstraint(Sketcher.Constraint("Horizontal", 19))
sketch9.addConstraint(Sketcher.Constraint("PointOnObject", 5, 2, -2))
sketch9.addConstraint(Sketcher.Constraint("Horizontal", 3, 2, 6, 2))
sketch9.addConstraint(Sketcher.Constraint("Vertical", 15, 2, 16, 2))
sketch9.addConstraint(Sketcher.Constraint("Equal", 14, 16))
sketch9.addConstraint(Sketcher.Constraint("DistanceY", 12, 1, 12, 2, 15.0))
sketch9.addConstraint(Sketcher.Constraint("DistanceX", 17, 1, 17, 2, 11.855682))
sketch9.addConstraint(Sketcher.Constraint("DistanceY", 0, 1, 0, 2, 46.294312))
sketch9.addConstraint(Sketcher.Constraint("DistanceX", 1, 1, 1, 2, 35.425074))
sketch9.addConstraint(Sketcher.Constraint("DistanceX", 5, 1, 5, 2, 13.394737))
sketch9.addConstraint(Sketcher.Constraint("DistanceX", 9, 1, 9, 2, 19.343092))
sketch9.addConstraint(Sketcher.Constraint("DistanceX", 13, 1, 13, 2, 12.732316))
sketch9.addConstraint(Sketcher.Constraint("DistanceY", 4, 1, 4, 2, 25.790348))
sketch9.addConstraint(Sketcher.Constraint("DistanceY", 8, 1, 8, 2, 32.937245))
sketch9.addConstraint(Sketcher.Constraint("DistanceX", 0, 2, -1, 1, 72.802388))
sketch9.addConstraint(Sketcher.Constraint("DistanceY", -1, 1, 4, 2, 4.56084))
sketch9.addConstraint(Sketcher.Constraint("DistanceX", -1, 1, 9, 2, 3.693728))
sketch9.addConstraint(Sketcher.Constraint("DistanceY", -1, 1, 10, 2, 17.454531))
sketch9.addConstraint(Sketcher.Constraint("DistanceX", -1, 1, 17, 2, 32.629258))
sketch9.addConstraint(Sketcher.Constraint("DistanceY", 16, 2, 9, 2, 4.097728))
sketch9.addConstraint(Sketcher.Constraint("DistanceY", 12, 2, -1, 1, 14.533953))
pocket5 = body.newObject("PartDesign::Pocket", "Pocket004")
pocket5.Profile = sketch9
pocket5.Type = "ThroughAll"
pocket5.Reversed = True

# Sketch on XZ plane
sketch10 = body.newObject("Sketcher::SketchObject", "Sketch009")
sketch10.AttachmentSupport = (doc.getObject("XZ_Plane"), [""])
sketch10.MapMode = "FlatFace"
sketch10.AttachmentOffset = App.Placement(App.Vector(0, 0, 14.832299), App.Rotation())
add_polygon(sketch10, [(-145.143418, -41.46897), (-145.143418, 58.53103), (-143.834879, 58.53103), (-143.834879, -41.46897)])  # lines 0-3
sketch10.addConstraint(Sketcher.Constraint("Vertical", 0))
sketch10.addConstraint(Sketcher.Constraint("Horizontal", 1))
sketch10.addConstraint(Sketcher.Constraint("Vertical", 2))
sketch10.addConstraint(Sketcher.Constraint("Horizontal", 3))
sketch10.addConstraint(Sketcher.Constraint("DistanceY", 0, 1, 0, 2, 100.0))
sketch10.addConstraint(Sketcher.Constraint("DistanceX", 1, 1, 1, 2, 1.308538))
sketch10.addConstraint(Sketcher.Constraint("DistanceY", -1, 1, 0, 2, 58.53103))
sketch10.addConstraint(Sketcher.Constraint("DistanceX", 1, 2, -1, 1, 143.834879))
pad5 = body.newObject("PartDesign::Pad", "Pad004")
pad5.Profile = sketch10
pad5.Length = 2.5
pad5.Reversed = True

doc.recompute()
